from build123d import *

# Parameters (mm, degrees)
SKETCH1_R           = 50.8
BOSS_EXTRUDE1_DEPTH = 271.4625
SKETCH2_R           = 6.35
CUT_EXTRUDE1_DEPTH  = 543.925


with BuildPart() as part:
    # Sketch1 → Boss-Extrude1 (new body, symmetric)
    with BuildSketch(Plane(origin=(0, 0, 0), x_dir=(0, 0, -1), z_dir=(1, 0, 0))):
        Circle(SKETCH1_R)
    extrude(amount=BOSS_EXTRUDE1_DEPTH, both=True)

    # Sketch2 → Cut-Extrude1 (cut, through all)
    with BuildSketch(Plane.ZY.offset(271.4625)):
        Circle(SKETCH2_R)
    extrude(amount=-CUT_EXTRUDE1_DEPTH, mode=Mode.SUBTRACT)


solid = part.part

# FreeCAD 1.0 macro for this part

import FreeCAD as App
import Part
import Sketcher
from FreeCAD import Vector
Q = App.Units.Quantity

doc = App.newDocument("Part")
body = doc.addObject("PartDesign::Body", "Body")

# Sketch on YZ plane
sketch1 = body.newObject("Sketcher::SketchObject", "Sketch")
sketch1.AttachmentSupport = (doc.getObject("YZ_Plane"), [""])
sketch1.MapMode = "FlatFace"
sketch1.addGeometry(Part.Circle(Vector(0, 0, 0), Vector(0, 0, 1), 50.8), False)
sketch1.addConstraint([
    Sketcher.Constraint("Coincident", 0, 3, -1, 1),
    Sketcher.Constraint("Diameter", 0, Q("4 in")),
])
pad1 = body.newObject("PartDesign::Pad", "Pad")
pad1.Profile = sketch1
pad1.Length = Q("21.375 in")
pad1.Midplane = True

# Sketch on YZ plane
sketch2 = body.newObject("Sketcher::SketchObject", "Sketch001")
sketch2.AttachmentSupport = (doc.getObject("YZ_Plane"), [""])
sketch2.MapMode = "FlatFace"
sketch2.AttachmentOffset = App.Placement(Vector(0, 0, -10.6875 * 25.4), App.Rotation())
sketch2.addGeometry(Part.Circle(Vector(0, 0, 0), Vector(0, 0, 1), 6.35), False)
sketch2.addConstraint([
    Sketcher.Constraint("Coincident", 0, 3, -1, 1),
    Sketcher.Constraint("Diameter", 0, Q("0.5 in")),
])
pocket1 = body.newObject("PartDesign::Pocket", "Pocket")
pocket1.Profile = sketch2
pocket1.Type = "ThroughAll"
pocket1.Reversed = True

doc.recompute()
